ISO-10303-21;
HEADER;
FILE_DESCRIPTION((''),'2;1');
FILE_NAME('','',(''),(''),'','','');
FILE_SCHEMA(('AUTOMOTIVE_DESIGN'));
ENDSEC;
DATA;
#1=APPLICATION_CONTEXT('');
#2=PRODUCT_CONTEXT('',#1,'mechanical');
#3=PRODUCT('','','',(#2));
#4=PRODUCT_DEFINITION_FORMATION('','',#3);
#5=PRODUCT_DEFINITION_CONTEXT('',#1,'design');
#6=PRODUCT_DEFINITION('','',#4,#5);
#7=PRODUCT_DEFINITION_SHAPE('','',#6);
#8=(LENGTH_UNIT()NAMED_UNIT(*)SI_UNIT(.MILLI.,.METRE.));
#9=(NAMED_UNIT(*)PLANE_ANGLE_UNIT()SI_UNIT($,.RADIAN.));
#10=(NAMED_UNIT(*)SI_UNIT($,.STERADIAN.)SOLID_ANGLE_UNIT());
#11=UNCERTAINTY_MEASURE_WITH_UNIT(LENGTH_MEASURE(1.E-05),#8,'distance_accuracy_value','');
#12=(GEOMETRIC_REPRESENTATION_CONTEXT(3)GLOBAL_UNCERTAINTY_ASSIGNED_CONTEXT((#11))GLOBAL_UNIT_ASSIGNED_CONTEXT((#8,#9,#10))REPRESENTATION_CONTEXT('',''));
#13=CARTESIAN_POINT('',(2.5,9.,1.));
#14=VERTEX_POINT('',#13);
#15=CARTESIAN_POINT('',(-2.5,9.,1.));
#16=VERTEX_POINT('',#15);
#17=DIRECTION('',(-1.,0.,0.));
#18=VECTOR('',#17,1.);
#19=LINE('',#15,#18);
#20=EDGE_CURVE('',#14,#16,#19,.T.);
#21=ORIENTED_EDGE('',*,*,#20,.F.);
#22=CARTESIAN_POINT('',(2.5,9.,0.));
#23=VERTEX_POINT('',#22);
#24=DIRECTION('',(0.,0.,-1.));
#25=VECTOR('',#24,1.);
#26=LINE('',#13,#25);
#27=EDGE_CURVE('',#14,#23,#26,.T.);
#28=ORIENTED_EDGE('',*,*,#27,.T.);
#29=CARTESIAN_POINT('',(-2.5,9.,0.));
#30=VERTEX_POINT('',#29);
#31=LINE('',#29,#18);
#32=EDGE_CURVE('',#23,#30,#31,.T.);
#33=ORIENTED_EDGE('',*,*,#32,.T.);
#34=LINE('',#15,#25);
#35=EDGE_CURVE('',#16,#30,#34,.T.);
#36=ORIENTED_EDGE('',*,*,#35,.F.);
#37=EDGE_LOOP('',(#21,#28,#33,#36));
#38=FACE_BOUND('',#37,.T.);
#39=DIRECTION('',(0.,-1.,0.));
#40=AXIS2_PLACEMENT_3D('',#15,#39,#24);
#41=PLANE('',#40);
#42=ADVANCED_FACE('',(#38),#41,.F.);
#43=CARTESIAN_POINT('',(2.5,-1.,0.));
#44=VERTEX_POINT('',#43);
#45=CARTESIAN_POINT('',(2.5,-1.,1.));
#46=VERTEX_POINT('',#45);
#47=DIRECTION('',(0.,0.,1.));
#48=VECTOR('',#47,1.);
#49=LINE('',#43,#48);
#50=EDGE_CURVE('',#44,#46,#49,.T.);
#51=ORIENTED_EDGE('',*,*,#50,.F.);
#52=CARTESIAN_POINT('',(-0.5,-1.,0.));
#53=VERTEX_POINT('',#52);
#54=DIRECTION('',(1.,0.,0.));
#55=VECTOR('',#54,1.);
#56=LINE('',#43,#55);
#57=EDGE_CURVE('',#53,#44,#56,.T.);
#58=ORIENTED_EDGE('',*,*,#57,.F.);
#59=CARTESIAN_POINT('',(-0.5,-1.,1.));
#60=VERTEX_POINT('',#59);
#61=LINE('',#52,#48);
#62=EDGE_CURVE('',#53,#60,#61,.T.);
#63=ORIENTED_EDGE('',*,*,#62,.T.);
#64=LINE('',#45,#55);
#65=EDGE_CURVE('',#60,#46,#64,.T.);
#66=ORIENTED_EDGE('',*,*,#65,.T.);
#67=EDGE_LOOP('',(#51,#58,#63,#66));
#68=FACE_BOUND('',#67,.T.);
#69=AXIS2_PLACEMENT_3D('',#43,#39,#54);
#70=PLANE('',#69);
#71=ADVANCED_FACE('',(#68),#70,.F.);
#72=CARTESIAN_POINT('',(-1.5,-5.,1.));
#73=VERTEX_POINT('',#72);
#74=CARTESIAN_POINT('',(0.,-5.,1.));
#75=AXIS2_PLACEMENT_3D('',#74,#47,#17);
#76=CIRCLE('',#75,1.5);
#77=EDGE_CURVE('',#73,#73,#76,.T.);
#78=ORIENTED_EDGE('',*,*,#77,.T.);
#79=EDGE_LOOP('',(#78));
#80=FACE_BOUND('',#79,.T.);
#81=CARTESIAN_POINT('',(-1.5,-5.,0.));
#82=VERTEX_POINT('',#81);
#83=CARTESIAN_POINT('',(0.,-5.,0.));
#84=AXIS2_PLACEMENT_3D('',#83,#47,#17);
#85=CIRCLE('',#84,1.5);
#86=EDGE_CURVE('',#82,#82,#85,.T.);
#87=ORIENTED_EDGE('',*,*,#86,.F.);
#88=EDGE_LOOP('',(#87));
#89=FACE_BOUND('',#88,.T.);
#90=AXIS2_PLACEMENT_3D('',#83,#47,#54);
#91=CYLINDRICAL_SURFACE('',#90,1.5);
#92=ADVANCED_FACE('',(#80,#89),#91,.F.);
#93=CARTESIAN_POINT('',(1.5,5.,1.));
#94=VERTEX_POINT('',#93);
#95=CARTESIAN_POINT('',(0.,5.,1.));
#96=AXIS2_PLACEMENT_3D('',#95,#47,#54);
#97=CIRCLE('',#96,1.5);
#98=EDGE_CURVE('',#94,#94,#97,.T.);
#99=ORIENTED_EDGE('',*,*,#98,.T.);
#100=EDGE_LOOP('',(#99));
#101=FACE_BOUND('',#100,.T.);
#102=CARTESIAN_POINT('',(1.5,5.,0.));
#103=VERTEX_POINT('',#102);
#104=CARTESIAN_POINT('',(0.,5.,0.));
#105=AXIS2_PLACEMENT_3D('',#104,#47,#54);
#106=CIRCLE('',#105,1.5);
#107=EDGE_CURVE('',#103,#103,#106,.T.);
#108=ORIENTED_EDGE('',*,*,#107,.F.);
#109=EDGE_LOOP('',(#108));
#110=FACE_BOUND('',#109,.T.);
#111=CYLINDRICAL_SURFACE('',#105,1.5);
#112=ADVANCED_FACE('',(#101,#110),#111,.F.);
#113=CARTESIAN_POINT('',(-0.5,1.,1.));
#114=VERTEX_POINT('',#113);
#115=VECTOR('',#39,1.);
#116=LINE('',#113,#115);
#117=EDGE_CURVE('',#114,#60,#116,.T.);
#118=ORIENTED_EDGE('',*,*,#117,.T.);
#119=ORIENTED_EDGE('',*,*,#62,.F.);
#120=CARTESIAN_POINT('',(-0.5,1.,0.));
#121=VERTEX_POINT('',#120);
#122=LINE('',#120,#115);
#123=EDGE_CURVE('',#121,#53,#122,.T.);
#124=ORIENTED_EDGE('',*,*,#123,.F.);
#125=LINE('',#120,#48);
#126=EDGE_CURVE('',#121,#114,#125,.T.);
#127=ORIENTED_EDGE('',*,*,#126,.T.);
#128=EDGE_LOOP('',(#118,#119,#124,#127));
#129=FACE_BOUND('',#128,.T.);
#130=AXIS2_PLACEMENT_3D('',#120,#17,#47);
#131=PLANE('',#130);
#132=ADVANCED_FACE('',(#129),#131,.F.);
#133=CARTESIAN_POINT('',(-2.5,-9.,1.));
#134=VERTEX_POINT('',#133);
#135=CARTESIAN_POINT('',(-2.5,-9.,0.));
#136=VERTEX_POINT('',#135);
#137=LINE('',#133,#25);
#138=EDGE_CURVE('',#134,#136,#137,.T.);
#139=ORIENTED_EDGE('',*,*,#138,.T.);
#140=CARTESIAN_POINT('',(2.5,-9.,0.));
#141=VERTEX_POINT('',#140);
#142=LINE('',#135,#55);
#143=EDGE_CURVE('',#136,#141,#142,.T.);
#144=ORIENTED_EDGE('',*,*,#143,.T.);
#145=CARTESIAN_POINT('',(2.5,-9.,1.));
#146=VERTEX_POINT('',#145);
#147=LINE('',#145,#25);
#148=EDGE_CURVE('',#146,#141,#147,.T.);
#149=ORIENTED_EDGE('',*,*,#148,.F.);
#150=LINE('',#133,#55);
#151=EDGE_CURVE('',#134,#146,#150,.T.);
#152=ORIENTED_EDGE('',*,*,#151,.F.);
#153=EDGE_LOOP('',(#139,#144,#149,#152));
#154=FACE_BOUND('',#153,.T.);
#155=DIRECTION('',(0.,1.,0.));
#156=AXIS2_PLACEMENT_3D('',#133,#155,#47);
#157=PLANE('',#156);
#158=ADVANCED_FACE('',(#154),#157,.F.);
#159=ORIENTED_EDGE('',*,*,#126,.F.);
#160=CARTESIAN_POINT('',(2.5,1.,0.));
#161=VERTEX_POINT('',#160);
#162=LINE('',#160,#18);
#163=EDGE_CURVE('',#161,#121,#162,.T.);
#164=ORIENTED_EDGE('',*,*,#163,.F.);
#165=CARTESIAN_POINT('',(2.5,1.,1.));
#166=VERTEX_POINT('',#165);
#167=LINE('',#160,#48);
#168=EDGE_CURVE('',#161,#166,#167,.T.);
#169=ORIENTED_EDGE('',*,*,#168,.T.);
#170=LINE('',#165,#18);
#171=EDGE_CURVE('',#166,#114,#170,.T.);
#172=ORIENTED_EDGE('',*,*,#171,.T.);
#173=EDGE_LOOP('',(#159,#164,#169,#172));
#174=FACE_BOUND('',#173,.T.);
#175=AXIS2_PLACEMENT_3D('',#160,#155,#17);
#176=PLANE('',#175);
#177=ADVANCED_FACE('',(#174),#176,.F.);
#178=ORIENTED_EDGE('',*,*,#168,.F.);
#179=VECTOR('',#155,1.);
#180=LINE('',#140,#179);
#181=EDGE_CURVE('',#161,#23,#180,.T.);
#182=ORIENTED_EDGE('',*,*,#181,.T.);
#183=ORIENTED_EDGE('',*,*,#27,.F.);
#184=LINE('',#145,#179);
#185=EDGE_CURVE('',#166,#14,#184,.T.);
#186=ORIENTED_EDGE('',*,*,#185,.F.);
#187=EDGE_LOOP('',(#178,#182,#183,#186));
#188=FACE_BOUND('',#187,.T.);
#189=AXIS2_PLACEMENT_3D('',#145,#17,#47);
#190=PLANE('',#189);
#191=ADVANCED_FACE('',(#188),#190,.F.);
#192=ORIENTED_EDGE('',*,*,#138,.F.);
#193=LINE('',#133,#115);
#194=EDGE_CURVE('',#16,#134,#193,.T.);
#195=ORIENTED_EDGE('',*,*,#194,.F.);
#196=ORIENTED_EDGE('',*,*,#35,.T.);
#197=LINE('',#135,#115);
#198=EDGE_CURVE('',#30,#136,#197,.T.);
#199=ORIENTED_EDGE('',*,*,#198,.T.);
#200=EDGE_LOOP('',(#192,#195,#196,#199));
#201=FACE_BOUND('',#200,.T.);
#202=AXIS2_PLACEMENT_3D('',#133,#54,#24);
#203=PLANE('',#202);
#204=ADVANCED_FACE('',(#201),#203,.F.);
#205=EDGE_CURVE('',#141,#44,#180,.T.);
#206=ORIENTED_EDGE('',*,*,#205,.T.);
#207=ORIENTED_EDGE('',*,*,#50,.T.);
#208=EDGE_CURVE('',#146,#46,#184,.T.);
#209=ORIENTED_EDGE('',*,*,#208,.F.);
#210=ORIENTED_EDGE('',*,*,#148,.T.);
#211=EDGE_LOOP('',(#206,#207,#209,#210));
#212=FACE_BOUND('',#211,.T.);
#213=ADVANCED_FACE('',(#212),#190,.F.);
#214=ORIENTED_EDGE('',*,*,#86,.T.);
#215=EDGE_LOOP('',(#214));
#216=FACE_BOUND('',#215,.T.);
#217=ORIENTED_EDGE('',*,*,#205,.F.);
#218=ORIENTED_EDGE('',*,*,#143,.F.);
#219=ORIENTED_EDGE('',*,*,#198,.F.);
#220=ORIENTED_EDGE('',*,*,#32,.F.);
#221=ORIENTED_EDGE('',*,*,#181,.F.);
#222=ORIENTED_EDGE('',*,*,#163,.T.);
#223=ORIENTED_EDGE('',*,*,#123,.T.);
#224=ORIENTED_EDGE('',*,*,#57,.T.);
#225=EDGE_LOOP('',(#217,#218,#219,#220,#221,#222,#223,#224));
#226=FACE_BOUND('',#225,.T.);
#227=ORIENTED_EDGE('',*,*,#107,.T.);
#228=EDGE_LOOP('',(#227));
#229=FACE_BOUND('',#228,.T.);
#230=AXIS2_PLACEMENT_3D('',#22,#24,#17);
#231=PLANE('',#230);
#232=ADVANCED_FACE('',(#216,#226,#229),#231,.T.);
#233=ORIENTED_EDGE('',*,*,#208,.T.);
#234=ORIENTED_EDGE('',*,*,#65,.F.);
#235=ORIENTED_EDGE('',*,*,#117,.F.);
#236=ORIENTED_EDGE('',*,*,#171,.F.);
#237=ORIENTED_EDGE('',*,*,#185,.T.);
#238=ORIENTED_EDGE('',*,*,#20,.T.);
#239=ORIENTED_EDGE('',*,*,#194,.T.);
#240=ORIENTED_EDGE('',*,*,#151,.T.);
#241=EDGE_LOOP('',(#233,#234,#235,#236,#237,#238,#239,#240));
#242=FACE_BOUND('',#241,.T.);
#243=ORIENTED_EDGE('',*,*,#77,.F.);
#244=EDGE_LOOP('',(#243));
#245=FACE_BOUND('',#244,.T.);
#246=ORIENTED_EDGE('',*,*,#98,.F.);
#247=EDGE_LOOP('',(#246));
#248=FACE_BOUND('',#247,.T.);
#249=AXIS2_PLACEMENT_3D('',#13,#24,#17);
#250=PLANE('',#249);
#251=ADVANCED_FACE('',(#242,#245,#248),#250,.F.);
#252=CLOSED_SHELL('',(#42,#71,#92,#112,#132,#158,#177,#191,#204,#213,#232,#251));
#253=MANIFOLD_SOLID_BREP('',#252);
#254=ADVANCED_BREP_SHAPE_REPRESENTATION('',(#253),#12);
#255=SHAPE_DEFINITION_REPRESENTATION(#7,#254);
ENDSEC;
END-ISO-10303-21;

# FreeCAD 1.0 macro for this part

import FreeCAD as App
import Part
import Sketcher
from FreeCAD import Vector
Q = App.Units.Quantity


def add_polygon(sketch, points):
    """Adds a closed chain of lines whose ends are joined by coincident constraints."""
    first, n = sketch.GeometryCount, len(points)
    for a, b in zip(points, points[1:] + points[:1]):
        sketch.addGeometry(Part.LineSegment(App.Vector(*a, 0), App.Vector(*b, 0)), False)
    for i in range(n):
        sketch.addConstraint(Sketcher.Constraint("Coincident", first + i, 2, first + (i + 1) % n, 1))

doc = App.newDocument("Part")
body = doc.addObject("PartDesign::Body", "Body")

# Sketch on XY plane
sketch1 = doc.addObject("Sketcher::SketchObject", "Sketch")
body.addObject(sketch1)
sketch1.AttachmentSupport = (doc.XY_Plane, [""])
sketch1.MapMode = "FlatFace"
add_polygon(sketch1, [(-2, 9), (-2, -9), (2, -9), (2, 9)])  # lines 0-3
sketch1.addConstraint([
    Sketcher.Constraint("Vertical", 0),
    Sketcher.Constraint("Horizontal", 1),
    Sketcher.Constraint("Vertical", 2),
    Sketcher.Constraint("Horizontal", 3),
    Sketcher.Constraint("Symmetric", 0, 2, 2, 2, -1, 1),
    Sketcher.Constraint("DistanceX", 1, 1, 1, 2, Q("5 mm")),
    Sketcher.Constraint("DistanceY", 0, 2, 0, 1, Q("18 mm")),
])
pad1 = doc.addObject("PartDesign::Pad", "Pad")
body.addObject(pad1)
pad1.Profile = sketch1
pad1.Length = 1

# Sketch on XY plane
sketch2 = doc.addObject("Sketcher::SketchObject", "Sketch001")
body.addObject(sketch2)
sketch2.AttachmentSupport = (doc.XY_Plane, [""])
sketch2.MapMode = "FlatFace"
sketch2.AttachmentOffset = App.Placement(Vector(0, 0, 1), App.Rotation())
sketch2.addGeometry(Part.Circle(Vector(0, 5, 0), Vector(0, 0, 1), 1.5), False)  # 0
sketch2.addGeometry(Part.Circle(Vector(0, -5, 0), Vector(0, 0, 1), 1.5), False)  # 1
add_polygon(sketch2, [(-0.5, 1), (-0.5, -1), (2.5, -1), (2.5, 1)])  # lines 2-5
sketch2.addConstraint([
    Sketcher.Constraint("Vertical", 2),
    Sketcher.Constraint("Horizontal", 3),
    Sketcher.Constraint("Vertical", 4),
    Sketcher.Constraint("Horizontal", 5),
    Sketcher.Constraint("Equal", 0, 1),
    Sketcher.Constraint("Symmetric", 0, 3, 1, 3, -1, 1),
    Sketcher.Constraint("PointOnObject", 0, 3, -2),
    Sketcher.Constraint("Diameter", 0, Q("3 mm")),
    Sketcher.Constraint("DistanceX", 3, 1, 3, 2, Q("3 mm")),
    Sketcher.Constraint("DistanceY", 2, 2, 2, 1, Q("2 mm")),
    Sketcher.Constraint("DistanceY", -1, 1, 0, 3, Q("5 mm")),
    Sketcher.Constraint("DistanceY", 2, 2, -1, 1, Q("1 mm")),
    Sketcher.Constraint("DistanceX", 2, 2, -1, 1, Q("0.5 mm")),
])
pocket1 = doc.addObject("PartDesign::Pocket", "Pocket")
body.addObject(pocket1)
pocket1.Profile = sketch2
pocket1.Type = "ThroughAll"

doc.recompute()
